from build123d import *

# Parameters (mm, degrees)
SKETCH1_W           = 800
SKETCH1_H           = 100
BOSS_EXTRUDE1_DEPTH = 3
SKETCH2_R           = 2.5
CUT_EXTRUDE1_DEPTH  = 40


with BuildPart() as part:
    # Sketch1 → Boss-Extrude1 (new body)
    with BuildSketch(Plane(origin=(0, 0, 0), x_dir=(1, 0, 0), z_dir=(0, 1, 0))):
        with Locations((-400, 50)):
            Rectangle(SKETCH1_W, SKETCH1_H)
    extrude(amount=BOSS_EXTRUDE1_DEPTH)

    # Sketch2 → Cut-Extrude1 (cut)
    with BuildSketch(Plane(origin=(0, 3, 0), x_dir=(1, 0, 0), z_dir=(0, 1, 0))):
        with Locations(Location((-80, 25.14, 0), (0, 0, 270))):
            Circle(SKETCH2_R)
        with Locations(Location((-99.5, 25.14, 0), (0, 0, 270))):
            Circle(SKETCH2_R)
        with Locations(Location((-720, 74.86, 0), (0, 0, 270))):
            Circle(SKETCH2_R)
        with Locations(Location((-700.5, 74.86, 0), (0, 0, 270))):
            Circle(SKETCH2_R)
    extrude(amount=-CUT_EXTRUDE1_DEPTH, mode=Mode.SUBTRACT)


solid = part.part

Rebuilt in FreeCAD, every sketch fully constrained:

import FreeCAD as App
import Part
import Sketcher

V = App.Vector

doc = App.newDocument("Part")
body = doc.addObject("PartDesign::Body", "Body")

# Sketch on XZ plane
sketch1 = body.newObject("Sketcher::SketchObject", "Sketch")
sketch1.AttachmentSupport = (doc.getObject("XZ_Plane"), [""])
sketch1.MapMode = "FlatFace"
sketch1.addGeometry([
    Part.LineSegment(V(-800, -100, 0), V(-800, 0, 0)),
    Part.LineSegment(V(-800, 0, 0), V(0, 0, 0)),
    Part.LineSegment(V(0, 0, 0), V(0, -100, 0)),
    Part.LineSegment(V(0, -100, 0), V(-800, -100, 0)),
], False)
sketch1.addConstraint([
    Sketcher.Constraint("Coincident", 0, 2, 1, 1),
    Sketcher.Constraint("Coincident", 1, 2, 2, 1),
    Sketcher.Constraint("Coincident", 2, 2, 3, 1),
    Sketcher.Constraint("Coincident", 3, 2, 0, 1),
    Sketcher.Constraint("Vertical", 0),
    Sketcher.Constraint("Horizontal", 1),
    Sketcher.Constraint("Vertical", 2),
    Sketcher.Constraint("Horizontal", 3),
    Sketcher.Constraint("Coincident", 1, 2, -1, 1),
    Sketcher.Constraint("DistanceX", 1, 1, 1, 2, 800.0),
    Sketcher.Constraint("DistanceY", 0, 1, 0, 2, 100.0),
])
pad1 = body.newObject("PartDesign::Pad", "Pad")
pad1.Profile = sketch1
pad1.Length = 3
pad1.Reversed = True

# Sketch on XZ plane
sketch2 = body.newObject("Sketcher::SketchObject", "Sketch001")
sketch2.AttachmentSupport = (doc.getObject("XZ_Plane"), [""])
sketch2.MapMode = "FlatFace"
sketch2.AttachmentOffset = App.Placement(V(0, 0, -3), App.Rotation())
sketch2.addGeometry([
    Part.Circle(V(-80, -25.14, 0), V(0, 0, 1), 2.5),
    Part.Circle(V(-99.5, -25.14, 0), V(0, 0, 1), 2.5),
    Part.Circle(V(-720, -74.86, 0), V(0, 0, 1), 2.5),
    Part.Circle(V(-700.5, -74.86, 0), V(0, 0, 1), 2.5),
], False)
sketch2.addConstraint([
    Sketcher.Constraint("Equal", 0, 1),
    Sketcher.Constraint("Equal", 1, 2),
    Sketcher.Constraint("Equal", 2, 3),
    Sketcher.Constraint("Horizontal", 0, 3, 1, 3),
    Sketcher.Constraint("Horizontal", 2, 3, 3, 3),
    Sketcher.Constraint("Diameter", 0, 5.0),
    Sketcher.Constraint("DistanceX", 0, 3, -1, 1, 80.0),
    Sketcher.Constraint("DistanceX", 2, 3, -1, 1, 720.0),
    Sketcher.Constraint("DistanceX", 3, 3, 1, 3, 601.0),
    Sketcher.Constraint("DistanceX", 1, 3, -1, 1, 99.5),
    Sketcher.Constraint("DistanceY", 0, 3, -1, 1, 25.14),
    Sketcher.Constraint("DistanceY", 2, 3, -1, 1, 74.86),
])
pocket1 = body.newObject("PartDesign::Pocket", "Pocket")
pocket1.Profile = sketch2
pocket1.Length = 40
pocket1.Reversed = True

doc.recompute()
